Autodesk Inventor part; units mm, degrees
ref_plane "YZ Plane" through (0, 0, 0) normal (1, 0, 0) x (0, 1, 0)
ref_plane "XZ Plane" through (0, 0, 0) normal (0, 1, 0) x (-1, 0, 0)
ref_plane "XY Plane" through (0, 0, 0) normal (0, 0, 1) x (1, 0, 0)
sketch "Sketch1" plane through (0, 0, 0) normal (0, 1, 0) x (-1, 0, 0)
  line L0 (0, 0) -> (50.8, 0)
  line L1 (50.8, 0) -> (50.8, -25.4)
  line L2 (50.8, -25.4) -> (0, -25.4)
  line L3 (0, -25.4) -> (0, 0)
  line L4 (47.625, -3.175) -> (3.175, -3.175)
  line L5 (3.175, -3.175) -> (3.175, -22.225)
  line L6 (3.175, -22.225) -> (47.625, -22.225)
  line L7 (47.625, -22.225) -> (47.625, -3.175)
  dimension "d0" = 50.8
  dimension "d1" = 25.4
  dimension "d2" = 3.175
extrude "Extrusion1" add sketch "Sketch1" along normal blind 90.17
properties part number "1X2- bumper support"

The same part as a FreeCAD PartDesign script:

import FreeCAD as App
import Part
import Sketcher

V = App.Vector
Q = App.Units.Quantity


def add_polygon(sketch, points):
    """Adds a closed chain of lines whose ends are joined by coincident constraints."""
    first, n = sketch.GeometryCount, len(points)
    for a, b in zip(points, points[1:] + points[:1]):
        sketch.addGeometry(Part.LineSegment(App.Vector(*a, 0), App.Vector(*b, 0)), False)
    for i in range(n):
        sketch.addConstraint(Sketcher.Constraint("Coincident", first + i, 2, first + (i + 1) % n, 1))

doc = App.newDocument("Part")
params = doc.addObject("Spreadsheet::Sheet", "Params")
for row, (alias, value) in enumerate([
    ("sketch1_width", "2 in"),
    ("sketch1_height", "1 in"),
    ("pad1_length", "3.55 in"),
], start=1):
    params.set(f"A{row}", alias)
    params.set(f"B{row}", "=" + value)
    params.setAlias(f"B{row}", alias)

body = doc.addObject("PartDesign::Body", "Body")

# Sketch on XZ plane
sketch1 = doc.addObject("Sketcher::SketchObject", "Sketch")
body.addObject(sketch1)
sketch1.AttachmentSupport = (doc.XZ_Plane, [""])
sketch1.MapMode = "FlatFace"
add_polygon(sketch1, [(-51, 0), (0, 0), (0, -25), (-51, -25)])  # lines 0-3
add_polygon(sketch1, [(-3, -3), (-48, -3), (-48, -22), (-3, -22)])  # lines 4-7
sketch1.addConstraint(Sketcher.Constraint("Horizontal", 0))
sketch1.addConstraint(Sketcher.Constraint("Vertical", 1))
sketch1.addConstraint(Sketcher.Constraint("Horizontal", 2))
sketch1.addConstraint(Sketcher.Constraint("Vertical", 3))
sketch1.addConstraint(Sketcher.Constraint("Horizontal", 4))
sketch1.addConstraint(Sketcher.Constraint("Vertical", 5))
sketch1.addConstraint(Sketcher.Constraint("Horizontal", 6))
sketch1.addConstraint(Sketcher.Constraint("Vertical", 7))
sketch1.addConstraint(Sketcher.Constraint("Coincident", 0, 2, -1, 1))
sketch1.addConstraint(Sketcher.Constraint("DistanceX", 0, 1, 0, 2, Q("2 in")))
sketch1.addConstraint(Sketcher.Constraint("DistanceY", 1, 2, 1, 1, Q("1 in")))
sketch1.addConstraint(Sketcher.Constraint("DistanceY", 4, 2, -1, 1, Q("0.125 in")))
sketch1.addConstraint(Sketcher.Constraint("DistanceX", 6, 2, -1, 1, Q("0.125 in")))
sketch1.addConstraint(Sketcher.Constraint("DistanceX", 3, 2, 4, 2, Q("0.125 in")))
sketch1.addConstraint(Sketcher.Constraint("DistanceY", 2, 2, 5, 2, Q("0.125 in")))
sketch1.setExpression("Constraints[17]", "Params.sketch1_width")
sketch1.setExpression("Constraints[18]", "Params.sketch1_height")
pad1 = doc.addObject("PartDesign::Pad", "Pad")
body.addObject(pad1)
pad1.Profile = sketch1
pad1.setExpression("Length", "Params.pad1_length")
pad1.Reversed = True

doc.recompute()
